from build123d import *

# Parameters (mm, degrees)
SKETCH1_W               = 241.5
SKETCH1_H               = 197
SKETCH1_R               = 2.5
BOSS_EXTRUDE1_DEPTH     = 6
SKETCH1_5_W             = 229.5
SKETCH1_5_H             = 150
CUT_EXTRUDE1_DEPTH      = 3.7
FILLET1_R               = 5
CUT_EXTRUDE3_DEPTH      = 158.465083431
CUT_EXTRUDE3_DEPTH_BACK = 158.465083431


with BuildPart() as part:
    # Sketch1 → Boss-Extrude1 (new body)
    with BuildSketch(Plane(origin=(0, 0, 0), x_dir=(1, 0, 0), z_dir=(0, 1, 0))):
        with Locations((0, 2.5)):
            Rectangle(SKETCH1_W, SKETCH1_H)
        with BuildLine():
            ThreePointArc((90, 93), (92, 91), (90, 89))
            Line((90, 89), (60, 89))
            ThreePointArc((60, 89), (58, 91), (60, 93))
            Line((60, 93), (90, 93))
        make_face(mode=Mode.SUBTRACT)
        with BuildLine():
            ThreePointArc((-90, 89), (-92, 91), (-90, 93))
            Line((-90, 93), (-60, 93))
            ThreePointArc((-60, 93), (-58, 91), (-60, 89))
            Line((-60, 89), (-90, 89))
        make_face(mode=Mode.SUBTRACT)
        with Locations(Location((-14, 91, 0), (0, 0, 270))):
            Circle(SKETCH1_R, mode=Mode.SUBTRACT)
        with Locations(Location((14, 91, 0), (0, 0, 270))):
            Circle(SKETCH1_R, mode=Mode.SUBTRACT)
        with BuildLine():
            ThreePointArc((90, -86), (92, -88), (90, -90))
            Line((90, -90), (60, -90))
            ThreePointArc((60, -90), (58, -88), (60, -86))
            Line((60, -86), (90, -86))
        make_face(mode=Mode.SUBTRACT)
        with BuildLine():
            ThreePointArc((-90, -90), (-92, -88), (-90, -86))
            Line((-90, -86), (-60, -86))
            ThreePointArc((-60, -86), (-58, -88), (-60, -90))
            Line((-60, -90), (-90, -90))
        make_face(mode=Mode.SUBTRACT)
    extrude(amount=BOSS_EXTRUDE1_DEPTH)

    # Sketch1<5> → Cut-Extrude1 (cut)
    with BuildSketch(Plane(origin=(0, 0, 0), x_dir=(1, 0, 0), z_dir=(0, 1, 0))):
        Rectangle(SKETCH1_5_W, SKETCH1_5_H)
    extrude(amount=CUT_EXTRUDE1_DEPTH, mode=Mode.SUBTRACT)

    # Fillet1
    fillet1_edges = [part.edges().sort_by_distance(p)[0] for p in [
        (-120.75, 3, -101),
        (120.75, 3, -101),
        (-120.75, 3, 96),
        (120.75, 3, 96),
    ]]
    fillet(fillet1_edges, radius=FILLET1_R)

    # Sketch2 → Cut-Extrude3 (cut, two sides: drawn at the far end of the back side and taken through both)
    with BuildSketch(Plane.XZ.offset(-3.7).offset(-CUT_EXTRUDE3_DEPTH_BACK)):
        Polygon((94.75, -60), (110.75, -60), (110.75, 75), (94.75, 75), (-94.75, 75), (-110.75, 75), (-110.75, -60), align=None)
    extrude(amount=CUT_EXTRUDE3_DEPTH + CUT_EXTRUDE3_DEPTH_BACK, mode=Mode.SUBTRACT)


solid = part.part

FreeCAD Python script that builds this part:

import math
import FreeCAD as App
import Part
import Sketcher
from FreeCAD import Vector
Q = App.Units.Quantity


def edges_at(feature, points):
    """Names of the edges that pass closest to the given points."""
    edges = feature.Shape.Edges
    near = lambda p: min(range(len(edges)), key=lambda i: edges[i].distToShape(Part.Vertex(*p))[0])
    return sorted({f"Edge{near(p) + 1}" for p in points})


def add_polygon(sketch, points):
    """Adds a closed chain of lines whose ends are joined by coincident constraints."""
    first, n = sketch.GeometryCount, len(points)
    for a, b in zip(points, points[1:] + points[:1]):
        sketch.addGeometry(Part.LineSegment(App.Vector(*a, 0), App.Vector(*b, 0)), False)
    for i in range(n):
        sketch.addConstraint(Sketcher.Constraint("Coincident", first + i, 2, first + (i + 1) % n, 1))

doc = App.newDocument("Part")
body = doc.addObject("PartDesign::Body", "Body")

# Sketch on XZ plane
sketch1 = body.newObject("Sketcher::SketchObject", "Sketch")
sketch1.AttachmentSupport = (doc.getObject("XZ_Plane"), [""])
sketch1.MapMode = "FlatFace"
add_polygon(sketch1, [(-120.8, -101), (-120.8, 96), (120.8, 96), (120.8, -101)])  # lines 0-3
sketch1.addGeometry(Part.LineSegment(Vector(-60, 90, 0), Vector(-90, 90, 0)), False)  # 4
sketch1.addGeometry(Part.ArcOfCircle(Part.Circle(Vector(-90, 88, 0), Vector(0, 0, 1), 2), math.radians(90), math.radians(270)), False)  # 5
sketch1.addGeometry(Part.LineSegment(Vector(-90, 86, 0), Vector(-60, 86, 0)), False)  # 6
sketch1.addGeometry(Part.ArcOfCircle(Part.Circle(Vector(-60, 88, 0), Vector(0, 0, 1), 2), math.radians(-90), math.radians(90)), False)  # 7
sketch1.addGeometry(Part.LineSegment(Vector(60, 86, 0), Vector(90, 86, 0)), False)  # 8
sketch1.addGeometry(Part.ArcOfCircle(Part.Circle(Vector(90, 88, 0), Vector(0, 0, 1), 2), math.radians(-90), math.radians(90)), False)  # 9
sketch1.addGeometry(Part.LineSegment(Vector(90, 90, 0), Vector(60, 90, 0)), False)  # 10
sketch1.addGeometry(Part.ArcOfCircle(Part.Circle(Vector(60, 88, 0), Vector(0, 0, 1), 2), math.radians(90), math.radians(270)), False)  # 11
sketch1.addGeometry(Part.LineSegment(Vector(-60, -89, 0), Vector(-90, -89, 0)), False)  # 12
sketch1.addGeometry(Part.ArcOfCircle(Part.Circle(Vector(-90, -91, 0), Vector(0, 0, 1), 2), math.radians(90), math.radians(270)), False)  # 13
sketch1.addGeometry(Part.LineSegment(Vector(-90, -93, 0), Vector(-60, -93, 0)), False)  # 14
sketch1.addGeometry(Part.ArcOfCircle(Part.Circle(Vector(-60, -91, 0), Vector(0, 0, 1), 2), math.radians(-90), math.radians(90)), False)  # 15
sketch1.addGeometry(Part.Circle(Vector(-14, -91, 0), Vector(0, 0, 1), 2.5), False)  # 16
sketch1.addGeometry(Part.Circle(Vector(14, -91, 0), Vector(0, 0, 1), 2.5), False)  # 17
sketch1.addGeometry(Part.LineSegment(Vector(60, -93, 0), Vector(90, -93, 0)), False)  # 18
sketch1.addGeometry(Part.ArcOfCircle(Part.Circle(Vector(90, -91, 0), Vector(0, 0, 1), 2), math.radians(-90), math.radians(90)), False)  # 19
sketch1.addGeometry(Part.LineSegment(Vector(90, -89, 0), Vector(60, -89, 0)), False)  # 20
sketch1.addGeometry(Part.ArcOfCircle(Part.Circle(Vector(60, -91, 0), Vector(0, 0, 1), 2), math.radians(90), math.radians(270)), False)  # 21
sketch1.addConstraint(Sketcher.Constraint("Tangent", 4, 2, 5, 1))
sketch1.addConstraint(Sketcher.Constraint("Tangent", 5, 2, 6, 1))
sketch1.addConstraint(Sketcher.Constraint("Tangent", 6, 2, 7, 1))
sketch1.addConstraint(Sketcher.Constraint("Tangent", 7, 2, 4, 1))
sketch1.addConstraint(Sketcher.Constraint("Tangent", 8, 2, 9, 1))
sketch1.addConstraint(Sketcher.Constraint("Tangent", 9, 2, 10, 1))
sketch1.addConstraint(Sketcher.Constraint("Tangent", 10, 2, 11, 1))
sketch1.addConstraint(Sketcher.Constraint("Tangent", 11, 2, 8, 1))
sketch1.addConstraint(Sketcher.Constraint("Tangent", 12, 2, 13, 1))
sketch1.addConstraint(Sketcher.Constraint("Tangent", 13, 2, 14, 1))
sketch1.addConstraint(Sketcher.Constraint("Tangent", 14, 2, 15, 1))
sketch1.addConstraint(Sketcher.Constraint("Tangent", 15, 2, 12, 1))
sketch1.addConstraint(Sketcher.Constraint("Tangent", 18, 2, 19, 1))
sketch1.addConstraint(Sketcher.Constraint("Tangent", 19, 2, 20, 1))
sketch1.addConstraint(Sketcher.Constraint("Tangent", 20, 2, 21, 1))
sketch1.addConstraint(Sketcher.Constraint("Tangent", 21, 2, 18, 1))
sketch1.addConstraint(Sketcher.Constraint("Vertical", 0))
sketch1.addConstraint(Sketcher.Constraint("Horizontal", 1))
sketch1.addConstraint(Sketcher.Constraint("Vertical", 2))
sketch1.addConstraint(Sketcher.Constraint("Horizontal", 3))
sketch1.addConstraint(Sketcher.Constraint("Horizontal", 4))
sketch1.addConstraint(Sketcher.Constraint("Horizontal", 6))
sketch1.addConstraint(Sketcher.Constraint("Horizontal", 8))
sketch1.addConstraint(Sketcher.Constraint("Horizontal", 10))
sketch1.addConstraint(Sketcher.Constraint("Horizontal", 12))
sketch1.addConstraint(Sketcher.Constraint("Horizontal", 14))
sketch1.addConstraint(Sketcher.Constraint("Horizontal", 18))
sketch1.addConstraint(Sketcher.Constraint("Horizontal", 20))
sketch1.addConstraint(Sketcher.Constraint("Equal", 7, 9))
sketch1.addConstraint(Sketcher.Constraint("Equal", 11, 13))
sketch1.addConstraint(Sketcher.Constraint("Equal", 16, 17))
sketch1.addConstraint(Sketcher.Constraint("Equal", 15, 19))
sketch1.addConstraint(Sketcher.Constraint("Symmetric", 5, 3, 9, 3, -2))
sketch1.addConstraint(Sketcher.Constraint("Symmetric", 16, 3, 17, 3, -2))
sketch1.addConstraint(Sketcher.Constraint("Symmetric", 13, 3, 19, 3, -2))
sketch1.addConstraint(Sketcher.Constraint("Horizontal", 15, 3, 16, 3))
sketch1.addConstraint(Sketcher.Constraint("Vertical", 5, 3, 13, 3))
sketch1.addConstraint(Sketcher.Constraint("Vertical", 7, 3, 15, 3))
sketch1.addConstraint(Sketcher.Constraint("Vertical", 11, 3, 21, 3))
sketch1.addConstraint(Sketcher.Constraint("Equal", 6, 8))
sketch1.addConstraint(Sketcher.Constraint("Diameter", 16, Q("5 mm")))
sketch1.addConstraint(Sketcher.Constraint("Radius", 5, Q("2 mm")))
sketch1.addConstraint(Sketcher.Constraint("DistanceX", 4, 2, 4, 1, Q("30 mm")))
sketch1.addConstraint(Sketcher.Constraint("DistanceY", 0, 1, 0, 2, Q("197 mm")))
sketch1.addConstraint(Sketcher.Constraint("DistanceX", 1, 1, 1, 2, Q("241.5 mm")))
sketch1.addConstraint(Sketcher.Constraint("DistanceX", 5, 3, -1, 1, Q("90 mm")))
sketch1.addConstraint(Sketcher.Constraint("DistanceY", -1, 1, 5, 3, Q("88 mm")))
sketch1.addConstraint(Sketcher.Constraint("DistanceY", 13, 3, -1, 1, Q("91 mm")))
sketch1.addConstraint(Sketcher.Constraint("DistanceX", 16, 3, -1, 1, Q("14 mm")))
sketch1.addConstraint(Sketcher.Constraint("DistanceY", -1, 1, 0, 2, Q("96 mm")))
sketch1.addConstraint(Sketcher.Constraint("DistanceX", 0, 2, -1, 1, Q("120.75 mm")))
pad1 = body.newObject("PartDesign::Pad", "Pad")
pad1.Profile = sketch1
pad1.Length = 6
pad1.Reversed = True

# Sketch on XZ plane
sketch2 = body.newObject("Sketcher::SketchObject", "Sketch001")
sketch2.AttachmentSupport = (doc.getObject("XZ_Plane"), [""])
sketch2.MapMode = "FlatFace"
add_polygon(sketch2, [(-115, -75), (-115, 75), (115, 75), (115, -75)])  # lines 0-3
sketch2.addConstraint(Sketcher.Constraint("Vertical", 0))
sketch2.addConstraint(Sketcher.Constraint("Horizontal", 1))
sketch2.addConstraint(Sketcher.Constraint("Vertical", 2))
sketch2.addConstraint(Sketcher.Constraint("Horizontal", 3))
sketch2.addConstraint(Sketcher.Constraint("Symmetric", 0, 2, 2, 2, -1, 1))
sketch2.addConstraint(Sketcher.Constraint("DistanceY", 0, 1, 0, 2, Q("150 mm")))
sketch2.addConstraint(Sketcher.Constraint("DistanceX", 1, 1, 1, 2, Q("229.5 mm")))
pocket1 = body.newObject("PartDesign::Pocket", "Pocket")
pocket1.Profile = sketch2
pocket1.Length = 3.7
doc.recompute()

fillet = body.newObject("PartDesign::Fillet", "Fillet")
fillet.Base = (pocket1, edges_at(pocket1, [
    (-120.75, 3, -101),
    (120.75, 3, -101),
    (-120.75, 3, 96),
    (120.75, 3, 96),
]))
fillet.Radius = 5

# Sketch on XZ plane
sketch3 = body.newObject("Sketcher::SketchObject", "Sketch002")
sketch3.AttachmentSupport = (doc.getObject("XZ_Plane"), [""])
sketch3.MapMode = "FlatFace"
sketch3.AttachmentOffset = App.Placement(Vector(0, 0, -3.7), App.Rotation())
add_polygon(sketch3, [(111, -60), (111, 75), (-111, 75), (-111, -60)])  # lines 0-3
sketch3.addConstraint(Sketcher.Constraint("Vertical", 0))
sketch3.addConstraint(Sketcher.Constraint("Horizontal", 1))
sketch3.addConstraint(Sketcher.Constraint("Vertical", 2))
sketch3.addConstraint(Sketcher.Constraint("Horizontal", 3))
sketch3.addConstraint(Sketcher.Constraint("DistanceY", 0, 1, 0, 2, Q("135 mm")))
sketch3.addConstraint(Sketcher.Constraint("DistanceX", 1, 2, 1, 1, Q("221.5 mm")))
sketch3.addConstraint(Sketcher.Constraint("DistanceY", -1, 1, 0, 2, Q("75 mm")))
sketch3.addConstraint(Sketcher.Constraint("DistanceX", -1, 1, 0, 2, Q("110.75 mm")))
pocket2 = body.newObject("PartDesign::Pocket", "Pocket001")
pocket2.Profile = sketch3
pocket2.Type = "ThroughAll"
pocket2.Midplane = True

doc.recompute()
